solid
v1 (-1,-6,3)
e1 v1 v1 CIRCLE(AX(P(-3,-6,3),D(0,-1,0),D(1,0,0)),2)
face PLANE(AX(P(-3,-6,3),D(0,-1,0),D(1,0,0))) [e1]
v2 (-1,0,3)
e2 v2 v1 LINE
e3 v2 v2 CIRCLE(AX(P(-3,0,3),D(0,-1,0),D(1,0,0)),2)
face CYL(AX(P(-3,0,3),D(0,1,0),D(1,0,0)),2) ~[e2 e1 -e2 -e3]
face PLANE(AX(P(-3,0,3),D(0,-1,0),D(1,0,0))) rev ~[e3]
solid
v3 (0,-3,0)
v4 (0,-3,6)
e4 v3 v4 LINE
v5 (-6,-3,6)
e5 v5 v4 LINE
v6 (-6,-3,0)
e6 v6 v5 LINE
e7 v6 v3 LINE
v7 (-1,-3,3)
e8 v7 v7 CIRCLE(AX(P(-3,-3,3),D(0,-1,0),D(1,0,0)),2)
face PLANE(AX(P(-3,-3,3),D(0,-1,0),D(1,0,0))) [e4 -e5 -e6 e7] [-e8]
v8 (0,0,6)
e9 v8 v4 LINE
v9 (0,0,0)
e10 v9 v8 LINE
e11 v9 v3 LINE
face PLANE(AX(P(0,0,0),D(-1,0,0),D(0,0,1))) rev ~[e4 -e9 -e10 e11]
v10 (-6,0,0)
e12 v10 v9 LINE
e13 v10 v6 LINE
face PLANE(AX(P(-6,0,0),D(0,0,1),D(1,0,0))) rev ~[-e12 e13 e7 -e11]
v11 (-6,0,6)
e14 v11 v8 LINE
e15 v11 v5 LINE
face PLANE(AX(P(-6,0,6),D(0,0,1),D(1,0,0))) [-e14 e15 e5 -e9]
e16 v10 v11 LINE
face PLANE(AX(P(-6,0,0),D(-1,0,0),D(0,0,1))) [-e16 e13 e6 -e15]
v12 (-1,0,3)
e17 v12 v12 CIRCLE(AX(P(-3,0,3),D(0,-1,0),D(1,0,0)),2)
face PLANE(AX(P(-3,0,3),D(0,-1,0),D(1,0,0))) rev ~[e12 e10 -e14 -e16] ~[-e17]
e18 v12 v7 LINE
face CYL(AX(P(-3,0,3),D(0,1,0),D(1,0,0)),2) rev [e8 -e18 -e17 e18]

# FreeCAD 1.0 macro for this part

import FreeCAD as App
import Part
import Sketcher


def add_polygon(sketch, points):
    """Adds a closed chain of lines whose ends are joined by coincident constraints."""
    first, n = sketch.GeometryCount, len(points)
    for a, b in zip(points, points[1:] + points[:1]):
        sketch.addGeometry(Part.LineSegment(App.Vector(*a, 0), App.Vector(*b, 0)), False)
    for i in range(n):
        sketch.addConstraint(Sketcher.Constraint("Coincident", first + i, 2, first + (i + 1) % n, 1))

doc = App.newDocument("Part")
body = doc.addObject("PartDesign::Body", "Body")

# Sketch on XZ plane
sketch1 = body.newObject("Sketcher::SketchObject", "Sketch")
sketch1.AttachmentSupport = (doc.getObject("XZ_Plane"), [""])
sketch1.MapMode = "FlatFace"
sketch1.addGeometry(Part.Circle(App.Vector(-3, 3, 0), App.Vector(0, 0, 1), 2), False)
sketch1.addConstraint([
    Sketcher.Constraint("Diameter", 0, 4.0),
    Sketcher.Constraint("DistanceX", 0, 3, -1, 1, 3.0),
    Sketcher.Constraint("DistanceY", -1, 1, 0, 3, 3.0),
])
pad1 = body.newObject("PartDesign::Pad", "Pad")
pad1.Profile = sketch1
pad1.Length = 6
body2 = doc.addObject("PartDesign::Body", "Body001")

# Sketch on XZ plane
sketch2 = body2.newObject("Sketcher::SketchObject", "Sketch001")
sketch2.AttachmentSupport = (doc.getObject("XZ_Plane001"), [""])
sketch2.MapMode = "FlatFace"
add_polygon(sketch2, [(-6, 6), (-6, 0), (0, 0), (0, 6)])  # lines 0-3
sketch2.addGeometry(Part.Circle(App.Vector(-3, 3, 0), App.Vector(0, 0, 1), 2), False)  # 4
sketch2.addConstraint([
    Sketcher.Constraint("Vertical", 0),
    Sketcher.Constraint("Horizontal", 1),
    Sketcher.Constraint("Vertical", 2),
    Sketcher.Constraint("Horizontal", 3),
    Sketcher.Constraint("Coincident", 1, 2, -1, 1),
    Sketcher.Constraint("Equal", 3, 0),
    Sketcher.Constraint("Diameter", 4, 4.0),
    Sketcher.Constraint("DistanceX", 1, 1, 1, 2, 6.0),
    Sketcher.Constraint("DistanceX", 4, 3, -1, 1, 3.0),
    Sketcher.Constraint("DistanceY", -1, 1, 4, 3, 3.0),
])
pad2 = body2.newObject("PartDesign::Pad", "Pad001")
pad2.Profile = sketch2
pad2.Length = 3

doc.recompute()
